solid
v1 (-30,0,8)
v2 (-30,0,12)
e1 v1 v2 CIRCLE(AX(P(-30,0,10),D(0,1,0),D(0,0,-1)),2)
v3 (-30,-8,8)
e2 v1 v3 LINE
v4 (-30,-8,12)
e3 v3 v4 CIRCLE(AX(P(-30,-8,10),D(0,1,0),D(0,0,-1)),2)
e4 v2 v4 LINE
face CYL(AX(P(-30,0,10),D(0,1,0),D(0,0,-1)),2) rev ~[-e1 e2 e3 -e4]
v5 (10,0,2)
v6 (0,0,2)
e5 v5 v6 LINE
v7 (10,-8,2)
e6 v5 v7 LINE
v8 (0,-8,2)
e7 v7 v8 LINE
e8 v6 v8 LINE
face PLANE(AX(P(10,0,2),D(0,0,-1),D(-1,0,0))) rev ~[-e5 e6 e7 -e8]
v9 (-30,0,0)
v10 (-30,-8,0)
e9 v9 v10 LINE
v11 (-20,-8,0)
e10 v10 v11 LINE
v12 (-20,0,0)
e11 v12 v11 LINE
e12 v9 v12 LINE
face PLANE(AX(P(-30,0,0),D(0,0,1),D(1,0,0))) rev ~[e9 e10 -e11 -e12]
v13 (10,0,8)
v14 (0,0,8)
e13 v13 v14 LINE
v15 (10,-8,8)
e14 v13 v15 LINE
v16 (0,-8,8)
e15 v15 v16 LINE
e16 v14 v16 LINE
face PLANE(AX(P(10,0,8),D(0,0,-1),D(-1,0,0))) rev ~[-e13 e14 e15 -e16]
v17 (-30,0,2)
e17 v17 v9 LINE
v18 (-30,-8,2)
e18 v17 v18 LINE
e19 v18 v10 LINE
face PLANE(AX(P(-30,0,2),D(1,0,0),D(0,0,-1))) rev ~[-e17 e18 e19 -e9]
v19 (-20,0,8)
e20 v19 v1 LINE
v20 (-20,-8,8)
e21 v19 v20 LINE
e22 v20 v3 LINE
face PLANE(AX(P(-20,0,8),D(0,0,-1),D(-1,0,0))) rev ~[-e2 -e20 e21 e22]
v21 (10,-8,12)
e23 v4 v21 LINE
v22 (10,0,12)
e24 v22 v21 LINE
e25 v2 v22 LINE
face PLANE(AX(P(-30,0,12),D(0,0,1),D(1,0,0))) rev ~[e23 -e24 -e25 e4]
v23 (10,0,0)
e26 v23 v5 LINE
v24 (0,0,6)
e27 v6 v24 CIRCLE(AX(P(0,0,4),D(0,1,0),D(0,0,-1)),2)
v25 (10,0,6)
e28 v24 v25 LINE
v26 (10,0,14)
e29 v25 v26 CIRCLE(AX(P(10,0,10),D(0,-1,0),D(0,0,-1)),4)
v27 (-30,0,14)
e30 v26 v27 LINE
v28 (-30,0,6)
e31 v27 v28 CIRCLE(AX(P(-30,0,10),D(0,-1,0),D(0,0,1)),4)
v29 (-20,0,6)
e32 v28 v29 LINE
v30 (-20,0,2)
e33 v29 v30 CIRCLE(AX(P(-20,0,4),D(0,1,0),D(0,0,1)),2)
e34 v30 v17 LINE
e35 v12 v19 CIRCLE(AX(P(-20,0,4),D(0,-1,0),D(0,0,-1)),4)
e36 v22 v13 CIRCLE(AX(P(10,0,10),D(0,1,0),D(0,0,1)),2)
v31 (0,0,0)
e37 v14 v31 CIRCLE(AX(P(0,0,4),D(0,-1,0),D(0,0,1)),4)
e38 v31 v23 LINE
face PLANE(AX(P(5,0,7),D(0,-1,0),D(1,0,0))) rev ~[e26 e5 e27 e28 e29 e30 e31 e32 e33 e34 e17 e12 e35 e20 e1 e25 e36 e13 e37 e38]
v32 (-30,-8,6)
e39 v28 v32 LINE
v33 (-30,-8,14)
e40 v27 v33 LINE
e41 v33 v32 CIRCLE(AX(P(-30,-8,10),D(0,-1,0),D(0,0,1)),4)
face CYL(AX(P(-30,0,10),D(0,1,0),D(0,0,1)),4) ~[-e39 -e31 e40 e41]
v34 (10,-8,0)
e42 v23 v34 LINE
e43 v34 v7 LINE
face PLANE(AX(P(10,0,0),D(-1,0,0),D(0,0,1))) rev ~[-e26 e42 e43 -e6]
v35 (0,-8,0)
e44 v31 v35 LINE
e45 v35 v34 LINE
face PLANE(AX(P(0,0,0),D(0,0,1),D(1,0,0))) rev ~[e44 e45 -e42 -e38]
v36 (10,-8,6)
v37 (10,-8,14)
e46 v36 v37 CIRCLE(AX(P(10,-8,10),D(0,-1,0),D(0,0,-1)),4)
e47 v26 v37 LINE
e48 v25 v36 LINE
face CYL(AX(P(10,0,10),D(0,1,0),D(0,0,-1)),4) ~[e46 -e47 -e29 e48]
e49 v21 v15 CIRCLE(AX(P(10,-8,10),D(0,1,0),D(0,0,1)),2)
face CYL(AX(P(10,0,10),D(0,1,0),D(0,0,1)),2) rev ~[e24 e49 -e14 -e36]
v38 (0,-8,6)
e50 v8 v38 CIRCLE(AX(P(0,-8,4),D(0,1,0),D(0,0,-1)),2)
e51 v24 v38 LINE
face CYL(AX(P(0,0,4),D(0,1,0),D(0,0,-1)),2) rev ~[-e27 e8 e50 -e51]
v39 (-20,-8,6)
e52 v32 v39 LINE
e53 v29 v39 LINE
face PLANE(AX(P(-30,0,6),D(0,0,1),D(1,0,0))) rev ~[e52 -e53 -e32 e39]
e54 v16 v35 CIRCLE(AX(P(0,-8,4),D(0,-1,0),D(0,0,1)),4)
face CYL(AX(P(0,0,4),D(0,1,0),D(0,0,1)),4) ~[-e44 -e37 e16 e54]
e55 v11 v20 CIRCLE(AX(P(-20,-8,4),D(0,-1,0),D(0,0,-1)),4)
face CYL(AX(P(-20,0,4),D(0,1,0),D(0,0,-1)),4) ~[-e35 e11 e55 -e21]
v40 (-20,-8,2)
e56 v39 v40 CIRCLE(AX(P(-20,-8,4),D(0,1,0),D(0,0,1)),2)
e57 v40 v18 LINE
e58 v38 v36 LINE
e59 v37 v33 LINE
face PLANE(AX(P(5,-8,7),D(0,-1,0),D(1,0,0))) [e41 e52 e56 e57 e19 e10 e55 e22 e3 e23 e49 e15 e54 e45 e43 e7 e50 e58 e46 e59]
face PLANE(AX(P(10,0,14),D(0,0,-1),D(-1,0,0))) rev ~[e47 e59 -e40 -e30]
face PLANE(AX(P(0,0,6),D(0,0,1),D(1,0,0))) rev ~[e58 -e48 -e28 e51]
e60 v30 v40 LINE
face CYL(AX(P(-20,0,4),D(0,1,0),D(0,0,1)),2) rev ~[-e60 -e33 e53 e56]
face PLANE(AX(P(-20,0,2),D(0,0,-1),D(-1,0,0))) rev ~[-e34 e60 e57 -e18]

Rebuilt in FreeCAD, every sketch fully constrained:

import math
import FreeCAD as App
import Part
import Sketcher
Q = App.Units.Quantity

doc = App.newDocument("Part")
params = doc.addObject("Spreadsheet::Sheet", "Params")
for row, (alias, value) in enumerate([
    ("sketch1_radius", "4 mm"),
    ("sketch1_radius2", "2 mm"),
    ("sketch1_width", "40 mm"),
    ("sketch1_width2", "10 mm"),
    ("pad1_length", "8 mm"),
], start=1):
    params.set(f"A{row}", alias)
    params.set(f"B{row}", "=" + value)
    params.setAlias(f"B{row}", alias)

body = doc.addObject("PartDesign::Body", "Body")

sketch1 = body.newObject("Sketcher::SketchObject", "Sketch")
sketch1.AttachmentSupport = (doc.getObject("XZ_Plane"), [""])
sketch1.MapMode = "FlatFace"
sketch1.addGeometry(Part.ArcOfCircle(Part.Circle(App.Vector(10, 10, 0), App.Vector(0, 0, 1), 4), math.radians(-90), math.radians(90)), False)
sketch1.addGeometry(Part.LineSegment(App.Vector(10, 14, 0), App.Vector(-30, 14, 0)), False)
sketch1.addGeometry(Part.ArcOfCircle(Part.Circle(App.Vector(-30, 10, 0), App.Vector(0, 0, 1), 4), math.radians(90), math.radians(270)), False)
sketch1.addGeometry(Part.LineSegment(App.Vector(-30, 6, 0), App.Vector(-20, 6, 0)), False)
sketch1.addGeometry(Part.ArcOfCircle(Part.Circle(App.Vector(-20, 4, 0), App.Vector(0, 0, 1), 2), math.radians(-90), math.radians(90)), False)
sketch1.addGeometry(Part.LineSegment(App.Vector(-20, 2, 0), App.Vector(-30, 2, 0)), False)
sketch1.addGeometry(Part.LineSegment(App.Vector(-30, 2, 0), App.Vector(-30, 0, 0)), False)
sketch1.addGeometry(Part.LineSegment(App.Vector(-30, 0, 0), App.Vector(-20, 0, 0)), False)
sketch1.addGeometry(Part.ArcOfCircle(Part.Circle(App.Vector(-20, 4, 0), App.Vector(0, 0, 1), 4), math.radians(-90), math.radians(90)), False)
sketch1.addGeometry(Part.LineSegment(App.Vector(-20, 8, 0), App.Vector(-30, 8, 0)), False)
sketch1.addGeometry(Part.ArcOfCircle(Part.Circle(App.Vector(-30, 10, 0), App.Vector(0, 0, 1), 2), math.radians(90), math.radians(270)), False)
sketch1.addGeometry(Part.LineSegment(App.Vector(-30, 12, 0), App.Vector(10, 12, 0)), False)
sketch1.addGeometry(Part.ArcOfCircle(Part.Circle(App.Vector(10, 10, 0), App.Vector(0, 0, 1), 2), math.radians(-90), math.radians(90)), False)
sketch1.addGeometry(Part.LineSegment(App.Vector(10, 8, 0), App.Vector(0, 8, 0)), False)
sketch1.addGeometry(Part.ArcOfCircle(Part.Circle(App.Vector(0, 4, 0), App.Vector(0, 0, 1), 4), math.radians(90), math.radians(270)), False)
sketch1.addGeometry(Part.LineSegment(App.Vector(0, 0, 0), App.Vector(10, 0, 0)), False)
sketch1.addGeometry(Part.LineSegment(App.Vector(10, 0, 0), App.Vector(10, 2, 0)), False)
sketch1.addGeometry(Part.LineSegment(App.Vector(10, 2, 0), App.Vector(0, 2, 0)), False)
sketch1.addGeometry(Part.ArcOfCircle(Part.Circle(App.Vector(0, 4, 0), App.Vector(0, 0, 1), 2), math.radians(90), math.radians(270)), False)
sketch1.addGeometry(Part.LineSegment(App.Vector(0, 6, 0), App.Vector(10, 6, 0)), False)
sketch1.addConstraint(Sketcher.Constraint("Tangent", 0, 2, 1, 1))
sketch1.addConstraint(Sketcher.Constraint("Tangent", 1, 2, 2, 1))
sketch1.addConstraint(Sketcher.Constraint("Tangent", 2, 2, 3, 1))
sketch1.addConstraint(Sketcher.Constraint("Tangent", 3, 2, 4, 2))
sketch1.addConstraint(Sketcher.Constraint("Tangent", 4, 1, 5, 1))
sketch1.addConstraint(Sketcher.Constraint("Coincident", 5, 2, 6, 1))
sketch1.addConstraint(Sketcher.Constraint("Coincident", 6, 2, 7, 1))
sketch1.addConstraint(Sketcher.Constraint("Tangent", 7, 2, 8, 1))
sketch1.addConstraint(Sketcher.Constraint("Tangent", 8, 2, 9, 1))
sketch1.addConstraint(Sketcher.Constraint("Tangent", 9, 2, 10, 2))
sketch1.addConstraint(Sketcher.Constraint("Tangent", 10, 1, 11, 1))
sketch1.addConstraint(Sketcher.Constraint("Tangent", 11, 2, 12, 2))
sketch1.addConstraint(Sketcher.Constraint("Tangent", 12, 1, 13, 1))
sketch1.addConstraint(Sketcher.Constraint("Tangent", 13, 2, 14, 1))
sketch1.addConstraint(Sketcher.Constraint("Tangent", 14, 2, 15, 1))
sketch1.addConstraint(Sketcher.Constraint("Coincident", 15, 2, 16, 1))
sketch1.addConstraint(Sketcher.Constraint("Coincident", 16, 2, 17, 1))
sketch1.addConstraint(Sketcher.Constraint("Tangent", 17, 2, 18, 2))
sketch1.addConstraint(Sketcher.Constraint("Tangent", 18, 1, 19, 1))
sketch1.addConstraint(Sketcher.Constraint("Tangent", 19, 2, 0, 1))
sketch1.addConstraint(Sketcher.Constraint("Horizontal", 1))
sketch1.addConstraint(Sketcher.Constraint("Horizontal", 3))
sketch1.addConstraint(Sketcher.Constraint("Horizontal", 5))
sketch1.addConstraint(Sketcher.Constraint("Vertical", 6))
sketch1.addConstraint(Sketcher.Constraint("Horizontal", 7))
sketch1.addConstraint(Sketcher.Constraint("Horizontal", 9))
sketch1.addConstraint(Sketcher.Constraint("Horizontal", 11))
sketch1.addConstraint(Sketcher.Constraint("Horizontal", 13))
sketch1.addConstraint(Sketcher.Constraint("Horizontal", 15))
sketch1.addConstraint(Sketcher.Constraint("Vertical", 16))
sketch1.addConstraint(Sketcher.Constraint("Horizontal", 17))
sketch1.addConstraint(Sketcher.Constraint("Horizontal", 19))
sketch1.addConstraint(Sketcher.Constraint("Coincident", 14, 2, -1, 1))
sketch1.addConstraint(Sketcher.Constraint("Coincident", 8, 3, 4, 3))
sketch1.addConstraint(Sketcher.Constraint("Coincident", 10, 3, 2, 3))
sketch1.addConstraint(Sketcher.Constraint("Coincident", 12, 3, 0, 3))
sketch1.addConstraint(Sketcher.Constraint("Coincident", 18, 3, 14, 3))
sketch1.addConstraint(Sketcher.Constraint("Equal", 0, 2))
sketch1.addConstraint(Sketcher.Constraint("Equal", 2, 8))
sketch1.addConstraint(Sketcher.Constraint("Equal", 8, 14))
sketch1.addConstraint(Sketcher.Constraint("Vertical", 2, 2, 5, 2))
sketch1.addConstraint(Sketcher.Constraint("Vertical", 12, 1, 15, 2))
sketch1.addConstraint(Sketcher.Constraint("Equal", 9, 13))
sketch1.addConstraint(Sketcher.Constraint("Radius", 0, Q("4 mm")))
sketch1.addConstraint(Sketcher.Constraint("Radius", 4, Q("2 mm")))
sketch1.addConstraint(Sketcher.Constraint("DistanceX", 1, 2, 1, 1, Q("40 mm")))
sketch1.addConstraint(Sketcher.Constraint("DistanceX", 3, 1, 3, 2, Q("10 mm")))
sketch1.setExpression("Constraints[43]", "Params.sketch1_radius")
sketch1.setExpression("Constraints[44]", "Params.sketch1_radius2")
sketch1.setExpression("Constraints[45]", "Params.sketch1_width")
sketch1.setExpression("Constraints[46]", "Params.sketch1_width2")
pad1 = body.newObject("PartDesign::Pad", "Pad")
pad1.Profile = sketch1
pad1.setExpression("Length", "Params.pad1_length")

doc.recompute()
